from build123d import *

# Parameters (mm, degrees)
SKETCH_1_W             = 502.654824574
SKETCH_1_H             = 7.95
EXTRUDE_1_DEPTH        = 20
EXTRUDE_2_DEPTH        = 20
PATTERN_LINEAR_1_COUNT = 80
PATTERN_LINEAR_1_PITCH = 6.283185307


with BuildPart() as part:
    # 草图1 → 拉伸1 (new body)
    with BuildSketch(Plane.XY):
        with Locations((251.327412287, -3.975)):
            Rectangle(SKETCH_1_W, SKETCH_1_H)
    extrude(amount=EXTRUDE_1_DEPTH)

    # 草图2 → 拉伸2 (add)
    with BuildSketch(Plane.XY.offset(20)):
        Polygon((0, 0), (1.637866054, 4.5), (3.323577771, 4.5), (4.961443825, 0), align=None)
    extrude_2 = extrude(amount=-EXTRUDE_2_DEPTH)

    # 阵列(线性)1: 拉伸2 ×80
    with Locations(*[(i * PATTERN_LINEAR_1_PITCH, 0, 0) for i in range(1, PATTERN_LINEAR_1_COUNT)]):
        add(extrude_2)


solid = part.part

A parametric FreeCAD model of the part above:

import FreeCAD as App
import Part
import Sketcher
Q = App.Units.Quantity

doc = App.newDocument("Part")
body = doc.addObject("PartDesign::Body", "Body")

sketch1 = doc.addObject("Sketcher::SketchObject", "Sketch")
body.addObject(sketch1)
sketch1.AttachmentSupport = (doc.XY_Plane, [""])
sketch1.MapMode = "FlatFace"
sketch1.addGeometry([
    Part.LineSegment(App.Vector(0, 0, 0), App.Vector(0, -8, 0)),
    Part.LineSegment(App.Vector(0, -8, 0), App.Vector(503, -8, 0)),
    Part.LineSegment(App.Vector(503, -8, 0), App.Vector(503, 0, 0)),
    Part.LineSegment(App.Vector(503, 0, 0), App.Vector(0, 0, 0)),
], False)
sketch1.addConstraint([
    Sketcher.Constraint("Coincident", 0, 2, 1, 1),
    Sketcher.Constraint("Coincident", 1, 2, 2, 1),
    Sketcher.Constraint("Coincident", 2, 2, 3, 1),
    Sketcher.Constraint("Coincident", 3, 2, 0, 1),
    Sketcher.Constraint("Vertical", 0),
    Sketcher.Constraint("Horizontal", 1),
    Sketcher.Constraint("Vertical", 2),
    Sketcher.Constraint("Horizontal", 3),
    Sketcher.Constraint("Coincident", 3, 2, -1, 1),
    Sketcher.Constraint("DistanceY", 0, 2, 0, 1, Q("7.95 mm")),
    Sketcher.Constraint("DistanceX", 1, 1, 1, 2, Q("502.654825 mm")),
])
pad1 = doc.addObject("PartDesign::Pad", "Pad")
body.addObject(pad1)
pad1.Profile = sketch1
pad1.Length = 20

sketch2 = doc.addObject("Sketcher::SketchObject", "Sketch001")
body.addObject(sketch2)
sketch2.AttachmentSupport = (doc.XY_Plane, [""])
sketch2.MapMode = "FlatFace"
sketch2.AttachmentOffset = App.Placement(App.Vector(0, 0, 20), App.Rotation())
sketch2.addGeometry([
    Part.LineSegment(App.Vector(1.6, 4.5, 0), App.Vector(0, 0, 0)),
    Part.LineSegment(App.Vector(0, 0, 0), App.Vector(5, 0, 0)),
    Part.LineSegment(App.Vector(5, 0, 0), App.Vector(3.3, 4.5, 0)),
    Part.LineSegment(App.Vector(3.3, 4.5, 0), App.Vector(1.6, 4.5, 0)),
], False)
sketch2.addConstraint([
    Sketcher.Constraint("Coincident", 0, 2, 1, 1),
    Sketcher.Constraint("Coincident", 1, 2, 2, 1),
    Sketcher.Constraint("Coincident", 2, 2, 3, 1),
    Sketcher.Constraint("Coincident", 3, 2, 0, 1),
    Sketcher.Constraint("Horizontal", 1),
    Sketcher.Constraint("Horizontal", 3),
    Sketcher.Constraint("Coincident", 0, 2, -1, 1),
    Sketcher.Constraint("Equal", 0, 2),
    Sketcher.Constraint("Angle", 0, Q("-110 deg")),
    Sketcher.Constraint("DistanceY", -1, 1, 2, 2, Q("4.5 mm")),
    Sketcher.Constraint("DistanceX", 3, 2, 3, 1, Q("1.685712 mm")),
])
pad2 = doc.addObject("PartDesign::Pad", "Pad001")
body.addObject(pad2)
pad2.Profile = sketch2
pad2.Length = 20
pad2.Reversed = True
doc.recompute()

linearpattern = doc.addObject("PartDesign::LinearPattern", "LinearPattern")
body.addObject(linearpattern)
linearpattern.Originals = [pad2]
linearpattern.Direction = (doc.X_Axis, [""])
linearpattern.Mode = "offset"
linearpattern.Offset = 6.283185
linearpattern.Occurrences = 80
body.Tip = linearpattern

doc.recompute()
